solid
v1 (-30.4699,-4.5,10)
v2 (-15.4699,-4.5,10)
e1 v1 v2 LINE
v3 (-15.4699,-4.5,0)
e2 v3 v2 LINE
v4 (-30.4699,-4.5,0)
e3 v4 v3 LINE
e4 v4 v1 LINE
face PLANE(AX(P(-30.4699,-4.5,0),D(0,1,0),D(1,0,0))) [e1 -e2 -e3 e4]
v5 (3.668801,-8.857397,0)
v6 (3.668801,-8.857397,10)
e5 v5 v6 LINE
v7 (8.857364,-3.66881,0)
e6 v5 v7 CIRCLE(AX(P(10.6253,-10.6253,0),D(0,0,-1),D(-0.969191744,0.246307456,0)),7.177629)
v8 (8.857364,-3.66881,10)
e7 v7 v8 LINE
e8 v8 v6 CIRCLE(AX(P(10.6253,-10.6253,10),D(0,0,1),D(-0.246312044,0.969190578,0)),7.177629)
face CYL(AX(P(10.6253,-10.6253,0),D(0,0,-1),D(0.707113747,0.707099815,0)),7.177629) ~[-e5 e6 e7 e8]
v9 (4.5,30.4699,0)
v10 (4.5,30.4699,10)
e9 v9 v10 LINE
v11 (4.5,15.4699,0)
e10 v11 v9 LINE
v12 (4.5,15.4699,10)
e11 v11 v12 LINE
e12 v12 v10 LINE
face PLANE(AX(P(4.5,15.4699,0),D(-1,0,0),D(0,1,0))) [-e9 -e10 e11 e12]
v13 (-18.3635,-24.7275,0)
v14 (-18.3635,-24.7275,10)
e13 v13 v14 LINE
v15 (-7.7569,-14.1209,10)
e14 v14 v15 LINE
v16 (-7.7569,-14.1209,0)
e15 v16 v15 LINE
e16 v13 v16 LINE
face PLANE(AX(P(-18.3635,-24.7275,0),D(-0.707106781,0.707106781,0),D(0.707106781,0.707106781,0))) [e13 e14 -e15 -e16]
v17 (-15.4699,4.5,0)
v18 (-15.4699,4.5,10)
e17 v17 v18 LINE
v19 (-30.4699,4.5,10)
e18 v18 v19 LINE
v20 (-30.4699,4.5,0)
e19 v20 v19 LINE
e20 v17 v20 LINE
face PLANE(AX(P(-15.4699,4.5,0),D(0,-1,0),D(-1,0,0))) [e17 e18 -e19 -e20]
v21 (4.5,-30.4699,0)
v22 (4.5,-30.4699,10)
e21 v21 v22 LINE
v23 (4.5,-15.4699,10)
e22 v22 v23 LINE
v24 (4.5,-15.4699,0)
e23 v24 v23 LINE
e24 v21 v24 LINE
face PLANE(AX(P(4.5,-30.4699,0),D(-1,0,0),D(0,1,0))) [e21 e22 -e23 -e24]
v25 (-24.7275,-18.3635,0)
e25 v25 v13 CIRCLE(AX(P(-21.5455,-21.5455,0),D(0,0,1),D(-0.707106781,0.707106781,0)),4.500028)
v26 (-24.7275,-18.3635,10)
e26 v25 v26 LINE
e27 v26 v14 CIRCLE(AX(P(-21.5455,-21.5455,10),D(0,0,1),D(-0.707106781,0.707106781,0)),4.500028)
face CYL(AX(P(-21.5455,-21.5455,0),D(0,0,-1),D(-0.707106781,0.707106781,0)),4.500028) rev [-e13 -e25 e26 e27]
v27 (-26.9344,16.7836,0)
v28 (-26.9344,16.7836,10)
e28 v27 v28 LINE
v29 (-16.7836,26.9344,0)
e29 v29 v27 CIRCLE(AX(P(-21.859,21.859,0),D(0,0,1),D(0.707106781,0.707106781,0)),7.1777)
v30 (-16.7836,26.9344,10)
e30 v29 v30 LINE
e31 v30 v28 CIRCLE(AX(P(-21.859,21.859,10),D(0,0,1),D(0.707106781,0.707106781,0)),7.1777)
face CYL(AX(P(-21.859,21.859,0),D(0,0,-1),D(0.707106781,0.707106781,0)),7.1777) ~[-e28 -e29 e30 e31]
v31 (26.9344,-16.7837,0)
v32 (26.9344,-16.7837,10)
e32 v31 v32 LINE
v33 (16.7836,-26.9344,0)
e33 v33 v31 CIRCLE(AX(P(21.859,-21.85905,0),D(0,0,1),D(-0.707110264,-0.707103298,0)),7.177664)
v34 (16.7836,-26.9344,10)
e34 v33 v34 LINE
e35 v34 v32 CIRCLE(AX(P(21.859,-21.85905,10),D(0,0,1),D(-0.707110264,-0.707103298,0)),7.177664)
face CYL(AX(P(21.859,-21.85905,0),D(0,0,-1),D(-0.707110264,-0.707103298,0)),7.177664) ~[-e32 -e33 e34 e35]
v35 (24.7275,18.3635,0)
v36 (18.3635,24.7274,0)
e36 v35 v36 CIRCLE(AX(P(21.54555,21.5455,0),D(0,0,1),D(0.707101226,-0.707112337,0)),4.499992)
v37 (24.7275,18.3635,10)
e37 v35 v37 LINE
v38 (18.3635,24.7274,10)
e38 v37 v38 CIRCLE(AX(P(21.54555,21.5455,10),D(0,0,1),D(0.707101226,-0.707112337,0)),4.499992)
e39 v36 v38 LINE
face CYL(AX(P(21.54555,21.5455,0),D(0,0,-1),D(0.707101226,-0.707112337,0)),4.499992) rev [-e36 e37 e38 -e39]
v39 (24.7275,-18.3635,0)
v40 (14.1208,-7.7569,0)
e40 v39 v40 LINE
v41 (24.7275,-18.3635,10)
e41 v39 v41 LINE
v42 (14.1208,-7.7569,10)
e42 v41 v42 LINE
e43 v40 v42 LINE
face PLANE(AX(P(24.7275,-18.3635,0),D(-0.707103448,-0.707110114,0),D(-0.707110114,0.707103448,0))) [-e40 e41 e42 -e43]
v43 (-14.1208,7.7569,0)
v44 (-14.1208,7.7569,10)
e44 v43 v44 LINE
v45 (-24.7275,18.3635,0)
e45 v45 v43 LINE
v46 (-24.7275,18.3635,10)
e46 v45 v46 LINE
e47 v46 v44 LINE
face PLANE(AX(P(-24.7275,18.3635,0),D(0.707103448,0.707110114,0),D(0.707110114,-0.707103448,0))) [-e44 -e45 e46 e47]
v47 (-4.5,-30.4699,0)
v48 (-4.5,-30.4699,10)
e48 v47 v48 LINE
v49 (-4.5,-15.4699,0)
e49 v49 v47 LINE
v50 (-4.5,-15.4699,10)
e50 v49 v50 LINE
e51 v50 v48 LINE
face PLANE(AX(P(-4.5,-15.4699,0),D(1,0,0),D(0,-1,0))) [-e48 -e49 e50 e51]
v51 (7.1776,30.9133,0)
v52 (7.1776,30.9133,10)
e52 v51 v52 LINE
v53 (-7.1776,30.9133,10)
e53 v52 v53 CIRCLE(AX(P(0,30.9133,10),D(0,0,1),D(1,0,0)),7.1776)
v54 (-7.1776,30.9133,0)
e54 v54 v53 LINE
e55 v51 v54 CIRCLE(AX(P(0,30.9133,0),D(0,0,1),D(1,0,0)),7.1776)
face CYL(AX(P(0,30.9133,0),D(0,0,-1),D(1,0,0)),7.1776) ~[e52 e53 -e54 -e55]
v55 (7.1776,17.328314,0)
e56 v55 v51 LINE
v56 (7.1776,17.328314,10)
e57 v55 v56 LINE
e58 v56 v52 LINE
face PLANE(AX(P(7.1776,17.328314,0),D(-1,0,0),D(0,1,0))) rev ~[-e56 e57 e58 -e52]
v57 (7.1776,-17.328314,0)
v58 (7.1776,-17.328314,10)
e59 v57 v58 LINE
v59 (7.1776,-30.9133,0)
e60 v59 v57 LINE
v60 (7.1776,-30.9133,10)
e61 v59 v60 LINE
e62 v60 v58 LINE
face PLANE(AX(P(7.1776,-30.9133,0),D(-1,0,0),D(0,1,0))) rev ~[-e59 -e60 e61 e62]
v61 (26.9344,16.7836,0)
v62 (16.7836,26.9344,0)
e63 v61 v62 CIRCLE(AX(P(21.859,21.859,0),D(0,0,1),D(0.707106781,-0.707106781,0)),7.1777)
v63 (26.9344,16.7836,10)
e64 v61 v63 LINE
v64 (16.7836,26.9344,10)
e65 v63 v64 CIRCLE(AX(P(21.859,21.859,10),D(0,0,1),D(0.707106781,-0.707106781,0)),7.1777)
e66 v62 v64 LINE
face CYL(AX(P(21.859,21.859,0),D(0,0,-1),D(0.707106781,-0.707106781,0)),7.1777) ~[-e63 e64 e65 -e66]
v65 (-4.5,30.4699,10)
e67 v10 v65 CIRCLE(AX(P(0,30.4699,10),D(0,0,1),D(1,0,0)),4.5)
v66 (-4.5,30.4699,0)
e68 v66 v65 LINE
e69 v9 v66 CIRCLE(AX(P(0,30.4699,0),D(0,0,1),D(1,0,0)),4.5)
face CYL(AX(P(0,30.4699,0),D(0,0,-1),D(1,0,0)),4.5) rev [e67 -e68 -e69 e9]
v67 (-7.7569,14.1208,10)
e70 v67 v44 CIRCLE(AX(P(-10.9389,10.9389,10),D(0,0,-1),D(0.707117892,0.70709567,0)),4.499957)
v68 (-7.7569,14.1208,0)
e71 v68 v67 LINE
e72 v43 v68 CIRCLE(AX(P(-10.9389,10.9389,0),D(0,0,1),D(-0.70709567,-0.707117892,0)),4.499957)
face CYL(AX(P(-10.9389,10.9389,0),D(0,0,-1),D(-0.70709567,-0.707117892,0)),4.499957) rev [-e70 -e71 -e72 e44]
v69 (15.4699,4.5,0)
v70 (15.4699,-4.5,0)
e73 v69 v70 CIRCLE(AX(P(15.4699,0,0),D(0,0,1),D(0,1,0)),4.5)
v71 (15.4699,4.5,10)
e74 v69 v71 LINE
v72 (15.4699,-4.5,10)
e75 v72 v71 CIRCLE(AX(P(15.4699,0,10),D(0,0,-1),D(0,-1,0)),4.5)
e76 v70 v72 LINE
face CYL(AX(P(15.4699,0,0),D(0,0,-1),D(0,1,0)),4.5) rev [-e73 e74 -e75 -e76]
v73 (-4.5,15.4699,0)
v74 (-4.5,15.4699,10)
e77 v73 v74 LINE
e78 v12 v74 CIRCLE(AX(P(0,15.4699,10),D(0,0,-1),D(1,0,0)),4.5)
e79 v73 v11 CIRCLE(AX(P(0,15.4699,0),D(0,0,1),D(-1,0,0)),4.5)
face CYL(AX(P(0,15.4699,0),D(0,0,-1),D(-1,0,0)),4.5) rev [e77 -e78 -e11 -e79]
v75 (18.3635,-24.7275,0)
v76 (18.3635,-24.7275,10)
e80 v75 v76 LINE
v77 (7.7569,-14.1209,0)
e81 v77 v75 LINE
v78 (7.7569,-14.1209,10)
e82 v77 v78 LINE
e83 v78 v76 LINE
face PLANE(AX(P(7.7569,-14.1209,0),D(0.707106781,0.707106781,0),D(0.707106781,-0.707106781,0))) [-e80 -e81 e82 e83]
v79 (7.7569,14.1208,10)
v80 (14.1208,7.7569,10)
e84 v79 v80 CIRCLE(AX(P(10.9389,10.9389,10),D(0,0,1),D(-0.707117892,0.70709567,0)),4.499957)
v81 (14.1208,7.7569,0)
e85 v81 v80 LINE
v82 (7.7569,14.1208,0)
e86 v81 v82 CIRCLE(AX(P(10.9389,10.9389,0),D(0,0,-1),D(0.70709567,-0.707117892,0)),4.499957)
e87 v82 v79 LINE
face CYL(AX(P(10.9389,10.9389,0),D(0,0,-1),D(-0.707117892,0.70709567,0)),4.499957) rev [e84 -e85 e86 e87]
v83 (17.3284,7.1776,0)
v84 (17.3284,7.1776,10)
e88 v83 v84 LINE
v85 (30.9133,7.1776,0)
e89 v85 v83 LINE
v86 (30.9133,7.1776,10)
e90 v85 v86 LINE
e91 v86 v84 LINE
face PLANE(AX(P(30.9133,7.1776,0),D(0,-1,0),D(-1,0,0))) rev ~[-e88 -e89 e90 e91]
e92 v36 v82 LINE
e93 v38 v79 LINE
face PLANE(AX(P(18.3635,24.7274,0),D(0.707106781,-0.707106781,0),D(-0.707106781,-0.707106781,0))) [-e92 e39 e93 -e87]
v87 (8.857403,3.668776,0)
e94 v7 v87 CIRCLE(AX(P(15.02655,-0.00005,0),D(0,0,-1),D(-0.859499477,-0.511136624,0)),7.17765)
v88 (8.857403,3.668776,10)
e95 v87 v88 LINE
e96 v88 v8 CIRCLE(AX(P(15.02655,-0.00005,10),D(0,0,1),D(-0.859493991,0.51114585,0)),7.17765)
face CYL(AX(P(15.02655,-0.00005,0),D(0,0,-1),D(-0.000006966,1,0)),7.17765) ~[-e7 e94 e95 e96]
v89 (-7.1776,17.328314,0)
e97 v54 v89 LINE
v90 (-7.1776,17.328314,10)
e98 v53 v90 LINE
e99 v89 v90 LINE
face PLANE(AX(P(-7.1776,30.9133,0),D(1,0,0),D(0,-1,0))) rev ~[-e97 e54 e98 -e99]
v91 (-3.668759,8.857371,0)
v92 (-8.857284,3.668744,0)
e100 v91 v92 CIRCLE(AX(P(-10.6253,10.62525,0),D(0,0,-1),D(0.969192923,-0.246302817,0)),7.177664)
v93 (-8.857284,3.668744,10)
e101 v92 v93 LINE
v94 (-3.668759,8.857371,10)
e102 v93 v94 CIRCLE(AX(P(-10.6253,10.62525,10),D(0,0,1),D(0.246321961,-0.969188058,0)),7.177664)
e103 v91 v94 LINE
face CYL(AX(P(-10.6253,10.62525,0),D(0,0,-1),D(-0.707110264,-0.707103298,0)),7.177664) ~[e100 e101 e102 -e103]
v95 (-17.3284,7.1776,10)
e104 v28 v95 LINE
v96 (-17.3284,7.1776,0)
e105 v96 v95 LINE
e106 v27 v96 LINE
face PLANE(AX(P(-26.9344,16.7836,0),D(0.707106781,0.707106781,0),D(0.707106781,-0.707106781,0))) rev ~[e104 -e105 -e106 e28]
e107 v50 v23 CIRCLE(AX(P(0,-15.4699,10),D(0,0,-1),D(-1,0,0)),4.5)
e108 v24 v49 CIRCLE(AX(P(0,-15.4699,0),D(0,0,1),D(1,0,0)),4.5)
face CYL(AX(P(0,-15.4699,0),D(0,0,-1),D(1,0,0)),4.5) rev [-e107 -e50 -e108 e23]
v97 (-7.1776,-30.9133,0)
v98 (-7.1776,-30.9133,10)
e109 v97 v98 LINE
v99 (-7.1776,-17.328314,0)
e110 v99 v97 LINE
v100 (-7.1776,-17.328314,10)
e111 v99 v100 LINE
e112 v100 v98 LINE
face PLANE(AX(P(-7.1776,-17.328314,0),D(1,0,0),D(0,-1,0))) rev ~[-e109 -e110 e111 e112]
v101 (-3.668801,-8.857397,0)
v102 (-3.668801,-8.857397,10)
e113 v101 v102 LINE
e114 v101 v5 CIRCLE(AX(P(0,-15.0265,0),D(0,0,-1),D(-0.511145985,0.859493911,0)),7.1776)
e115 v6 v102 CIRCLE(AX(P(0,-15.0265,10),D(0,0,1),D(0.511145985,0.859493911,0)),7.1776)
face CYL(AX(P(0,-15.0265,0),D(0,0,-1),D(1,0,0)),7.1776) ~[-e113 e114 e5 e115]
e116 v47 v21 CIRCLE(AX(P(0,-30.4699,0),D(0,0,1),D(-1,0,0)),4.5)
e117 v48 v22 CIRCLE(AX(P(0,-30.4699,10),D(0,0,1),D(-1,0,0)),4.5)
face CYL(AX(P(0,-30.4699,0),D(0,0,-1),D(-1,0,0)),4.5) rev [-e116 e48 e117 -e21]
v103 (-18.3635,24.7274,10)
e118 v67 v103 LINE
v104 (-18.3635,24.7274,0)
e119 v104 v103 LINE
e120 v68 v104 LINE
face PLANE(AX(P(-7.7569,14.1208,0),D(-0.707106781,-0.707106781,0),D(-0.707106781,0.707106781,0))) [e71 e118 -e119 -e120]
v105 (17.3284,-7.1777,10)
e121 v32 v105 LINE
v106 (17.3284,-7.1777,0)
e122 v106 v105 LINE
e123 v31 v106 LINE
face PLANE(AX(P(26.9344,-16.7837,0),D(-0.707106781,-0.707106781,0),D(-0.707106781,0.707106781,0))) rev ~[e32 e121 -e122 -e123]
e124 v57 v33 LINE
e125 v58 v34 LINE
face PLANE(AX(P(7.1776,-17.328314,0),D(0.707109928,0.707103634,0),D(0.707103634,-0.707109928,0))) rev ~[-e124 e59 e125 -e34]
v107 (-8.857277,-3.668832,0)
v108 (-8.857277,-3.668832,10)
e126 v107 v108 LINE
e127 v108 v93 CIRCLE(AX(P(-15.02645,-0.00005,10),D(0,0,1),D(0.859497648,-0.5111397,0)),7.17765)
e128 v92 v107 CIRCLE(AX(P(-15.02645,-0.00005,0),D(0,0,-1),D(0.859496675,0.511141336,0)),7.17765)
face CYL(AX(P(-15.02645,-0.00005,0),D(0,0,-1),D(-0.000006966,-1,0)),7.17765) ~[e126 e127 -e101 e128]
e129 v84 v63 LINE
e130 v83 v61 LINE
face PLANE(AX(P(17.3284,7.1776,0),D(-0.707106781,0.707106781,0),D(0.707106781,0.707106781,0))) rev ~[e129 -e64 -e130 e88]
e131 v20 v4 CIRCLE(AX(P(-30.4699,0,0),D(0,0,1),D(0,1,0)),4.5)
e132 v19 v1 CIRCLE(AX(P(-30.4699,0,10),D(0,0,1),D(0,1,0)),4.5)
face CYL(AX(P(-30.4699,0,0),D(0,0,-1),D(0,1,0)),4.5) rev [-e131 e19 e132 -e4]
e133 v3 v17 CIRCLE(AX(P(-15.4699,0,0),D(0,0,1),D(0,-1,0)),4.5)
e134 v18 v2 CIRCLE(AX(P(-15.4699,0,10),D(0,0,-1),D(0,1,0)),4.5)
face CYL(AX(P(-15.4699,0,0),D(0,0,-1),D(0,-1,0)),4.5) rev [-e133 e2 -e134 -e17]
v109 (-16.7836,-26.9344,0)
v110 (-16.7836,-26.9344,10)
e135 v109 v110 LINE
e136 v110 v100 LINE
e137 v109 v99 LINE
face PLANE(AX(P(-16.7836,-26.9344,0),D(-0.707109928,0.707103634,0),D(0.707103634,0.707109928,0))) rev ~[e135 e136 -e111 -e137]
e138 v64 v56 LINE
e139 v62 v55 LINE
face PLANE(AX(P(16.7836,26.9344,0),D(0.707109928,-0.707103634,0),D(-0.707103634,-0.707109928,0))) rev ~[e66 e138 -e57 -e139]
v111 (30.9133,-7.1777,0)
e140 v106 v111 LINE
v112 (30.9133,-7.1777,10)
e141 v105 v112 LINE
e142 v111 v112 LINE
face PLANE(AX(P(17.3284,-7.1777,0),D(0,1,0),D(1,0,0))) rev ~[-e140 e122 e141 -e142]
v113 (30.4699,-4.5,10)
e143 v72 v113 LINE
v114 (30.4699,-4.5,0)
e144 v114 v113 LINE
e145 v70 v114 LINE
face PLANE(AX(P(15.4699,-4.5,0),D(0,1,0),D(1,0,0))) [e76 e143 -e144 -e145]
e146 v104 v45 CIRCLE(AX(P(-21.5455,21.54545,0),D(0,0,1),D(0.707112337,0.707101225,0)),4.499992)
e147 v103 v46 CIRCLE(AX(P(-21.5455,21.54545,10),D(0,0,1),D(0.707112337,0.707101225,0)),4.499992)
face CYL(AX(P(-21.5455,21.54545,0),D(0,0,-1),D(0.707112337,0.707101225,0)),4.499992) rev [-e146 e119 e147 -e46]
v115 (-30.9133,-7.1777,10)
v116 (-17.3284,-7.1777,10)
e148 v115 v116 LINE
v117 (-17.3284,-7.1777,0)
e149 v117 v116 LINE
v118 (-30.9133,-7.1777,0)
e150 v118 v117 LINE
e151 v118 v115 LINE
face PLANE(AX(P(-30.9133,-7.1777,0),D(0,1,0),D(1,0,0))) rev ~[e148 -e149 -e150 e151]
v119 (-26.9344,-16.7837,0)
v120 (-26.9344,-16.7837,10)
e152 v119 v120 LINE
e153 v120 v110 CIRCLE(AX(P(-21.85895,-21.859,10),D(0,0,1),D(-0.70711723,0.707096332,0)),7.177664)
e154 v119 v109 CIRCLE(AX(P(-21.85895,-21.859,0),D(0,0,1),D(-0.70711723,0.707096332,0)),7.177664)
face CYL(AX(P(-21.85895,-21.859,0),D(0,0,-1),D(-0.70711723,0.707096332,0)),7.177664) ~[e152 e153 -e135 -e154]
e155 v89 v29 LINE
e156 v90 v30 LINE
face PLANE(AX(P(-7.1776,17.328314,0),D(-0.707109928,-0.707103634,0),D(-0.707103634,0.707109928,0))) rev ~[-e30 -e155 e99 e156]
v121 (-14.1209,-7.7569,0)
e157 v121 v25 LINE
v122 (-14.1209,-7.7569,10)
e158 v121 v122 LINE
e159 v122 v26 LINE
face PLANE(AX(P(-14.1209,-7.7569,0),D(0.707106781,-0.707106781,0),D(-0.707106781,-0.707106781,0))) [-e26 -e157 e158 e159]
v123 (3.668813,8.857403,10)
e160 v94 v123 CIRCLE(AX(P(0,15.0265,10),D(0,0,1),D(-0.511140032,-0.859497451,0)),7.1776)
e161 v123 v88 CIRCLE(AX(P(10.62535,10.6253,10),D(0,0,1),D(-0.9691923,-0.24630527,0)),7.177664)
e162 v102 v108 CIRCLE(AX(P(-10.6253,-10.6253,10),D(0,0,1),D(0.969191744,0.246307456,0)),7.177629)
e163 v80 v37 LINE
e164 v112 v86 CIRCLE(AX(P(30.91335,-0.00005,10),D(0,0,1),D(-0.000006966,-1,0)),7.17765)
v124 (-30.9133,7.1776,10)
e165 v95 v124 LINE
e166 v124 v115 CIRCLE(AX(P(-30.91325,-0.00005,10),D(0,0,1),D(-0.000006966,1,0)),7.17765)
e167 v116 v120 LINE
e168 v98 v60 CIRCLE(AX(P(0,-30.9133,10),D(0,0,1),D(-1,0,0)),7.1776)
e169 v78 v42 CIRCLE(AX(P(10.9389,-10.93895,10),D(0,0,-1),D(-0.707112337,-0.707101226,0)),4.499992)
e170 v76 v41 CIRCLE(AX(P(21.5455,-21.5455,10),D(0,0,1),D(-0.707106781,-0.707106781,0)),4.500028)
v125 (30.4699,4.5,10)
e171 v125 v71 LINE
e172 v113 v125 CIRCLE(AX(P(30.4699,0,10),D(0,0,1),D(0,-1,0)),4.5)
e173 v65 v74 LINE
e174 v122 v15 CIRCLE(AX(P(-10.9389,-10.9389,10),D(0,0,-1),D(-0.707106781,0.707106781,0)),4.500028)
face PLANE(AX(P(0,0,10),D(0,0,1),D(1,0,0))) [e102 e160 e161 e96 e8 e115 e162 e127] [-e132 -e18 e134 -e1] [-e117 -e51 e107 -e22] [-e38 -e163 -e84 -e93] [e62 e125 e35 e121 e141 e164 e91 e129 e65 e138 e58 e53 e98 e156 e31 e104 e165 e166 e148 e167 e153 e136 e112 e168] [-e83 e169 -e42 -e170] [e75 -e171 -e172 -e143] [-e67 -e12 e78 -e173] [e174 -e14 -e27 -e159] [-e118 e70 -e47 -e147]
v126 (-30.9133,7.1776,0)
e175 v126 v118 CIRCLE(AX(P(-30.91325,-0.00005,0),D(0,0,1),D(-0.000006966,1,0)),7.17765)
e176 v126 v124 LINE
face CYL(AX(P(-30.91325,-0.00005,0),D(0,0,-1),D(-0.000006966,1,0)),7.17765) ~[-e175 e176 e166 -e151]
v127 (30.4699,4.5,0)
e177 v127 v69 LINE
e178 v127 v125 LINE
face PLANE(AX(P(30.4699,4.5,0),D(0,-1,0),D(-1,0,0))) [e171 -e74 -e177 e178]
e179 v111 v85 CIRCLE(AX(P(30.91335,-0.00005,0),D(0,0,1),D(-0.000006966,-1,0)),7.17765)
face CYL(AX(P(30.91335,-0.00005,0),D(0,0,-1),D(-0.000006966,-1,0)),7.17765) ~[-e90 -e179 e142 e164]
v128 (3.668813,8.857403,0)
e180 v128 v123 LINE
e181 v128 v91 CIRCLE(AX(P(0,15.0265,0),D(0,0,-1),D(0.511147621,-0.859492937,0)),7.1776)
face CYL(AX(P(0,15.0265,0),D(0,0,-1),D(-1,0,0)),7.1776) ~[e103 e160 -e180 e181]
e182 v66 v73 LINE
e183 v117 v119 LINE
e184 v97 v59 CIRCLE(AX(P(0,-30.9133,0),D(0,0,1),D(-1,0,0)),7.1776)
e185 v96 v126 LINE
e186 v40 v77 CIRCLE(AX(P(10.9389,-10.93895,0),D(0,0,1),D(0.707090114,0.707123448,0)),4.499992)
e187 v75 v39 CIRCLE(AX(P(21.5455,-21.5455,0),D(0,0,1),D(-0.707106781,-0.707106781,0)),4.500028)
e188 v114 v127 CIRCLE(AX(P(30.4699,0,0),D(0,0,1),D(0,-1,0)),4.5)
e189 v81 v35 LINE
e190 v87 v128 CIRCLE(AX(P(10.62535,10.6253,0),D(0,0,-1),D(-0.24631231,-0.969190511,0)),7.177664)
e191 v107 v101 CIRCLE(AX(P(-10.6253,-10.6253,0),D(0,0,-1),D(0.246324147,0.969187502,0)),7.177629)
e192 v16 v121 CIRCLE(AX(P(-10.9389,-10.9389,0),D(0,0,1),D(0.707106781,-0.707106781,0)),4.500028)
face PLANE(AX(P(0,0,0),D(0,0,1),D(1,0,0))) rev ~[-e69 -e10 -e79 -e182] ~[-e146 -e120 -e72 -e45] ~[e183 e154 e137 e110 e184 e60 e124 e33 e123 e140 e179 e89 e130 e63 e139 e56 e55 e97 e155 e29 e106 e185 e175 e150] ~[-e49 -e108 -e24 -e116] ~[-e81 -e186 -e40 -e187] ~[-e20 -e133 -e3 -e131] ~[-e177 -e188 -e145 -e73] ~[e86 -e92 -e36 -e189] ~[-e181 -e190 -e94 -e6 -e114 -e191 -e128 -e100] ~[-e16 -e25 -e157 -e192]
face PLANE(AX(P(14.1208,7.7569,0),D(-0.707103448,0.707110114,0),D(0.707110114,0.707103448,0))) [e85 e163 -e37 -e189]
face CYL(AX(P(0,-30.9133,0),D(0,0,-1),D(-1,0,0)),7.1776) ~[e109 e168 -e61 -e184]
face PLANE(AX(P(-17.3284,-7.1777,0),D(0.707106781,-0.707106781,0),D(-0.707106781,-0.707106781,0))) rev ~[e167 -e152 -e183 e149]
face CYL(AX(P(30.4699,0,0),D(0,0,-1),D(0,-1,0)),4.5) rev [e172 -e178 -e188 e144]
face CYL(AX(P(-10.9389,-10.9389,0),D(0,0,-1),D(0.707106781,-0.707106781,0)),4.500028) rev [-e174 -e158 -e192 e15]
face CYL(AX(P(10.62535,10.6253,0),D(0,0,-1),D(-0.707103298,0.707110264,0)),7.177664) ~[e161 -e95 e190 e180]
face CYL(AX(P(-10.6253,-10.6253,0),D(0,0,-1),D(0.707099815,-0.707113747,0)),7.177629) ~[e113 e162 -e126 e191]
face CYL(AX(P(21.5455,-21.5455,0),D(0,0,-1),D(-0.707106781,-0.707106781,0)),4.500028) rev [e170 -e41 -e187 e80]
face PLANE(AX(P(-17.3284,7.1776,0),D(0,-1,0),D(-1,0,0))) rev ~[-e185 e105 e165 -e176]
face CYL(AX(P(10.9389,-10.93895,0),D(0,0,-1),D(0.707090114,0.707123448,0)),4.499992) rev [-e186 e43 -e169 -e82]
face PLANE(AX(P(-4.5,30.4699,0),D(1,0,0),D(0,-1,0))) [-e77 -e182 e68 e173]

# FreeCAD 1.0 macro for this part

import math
import FreeCAD as App
import Part
import Sketcher

V = App.Vector
Q = App.Units.Quantity

doc = App.newDocument("Part")
params = doc.addObject("Spreadsheet::Sheet", "Params")
for row, (alias, value) in enumerate([
    ("sketch1_width", "15 mm"),
    ("sketch1_length", "15 mm"),
    ("sketch1_radius", "4.5 mm"),
    ("pad1_length", "10 mm"),
], start=1):
    params.set(f"A{row}", alias)
    params.set(f"B{row}", "=" + value)
    params.setAlias(f"B{row}", alias)

body = doc.addObject("PartDesign::Body", "Body")

# Sketch on XY plane
sketch1 = body.newObject("Sketcher::SketchObject", "Sketch")
sketch1.AttachmentSupport = (doc.getObject("XY_Plane"), [""])
sketch1.MapMode = "FlatFace"
sketch1.addGeometry(Part.LineSegment(V(16.7836, 26.9344, 0), V(7.1776, 17.328314, 0)), False)
sketch1.addGeometry(Part.LineSegment(V(7.1776, 17.328314, 0), V(7.1776, 30.9133, 0)), False)
sketch1.addGeometry(Part.ArcOfCircle(Part.Circle(V(0, 30.9133, 0), V(0, 0, 1), 7.1776), math.radians(0), math.radians(180)), False)
sketch1.addGeometry(Part.LineSegment(V(-7.1776, 30.9133, 0), V(-7.1776, 17.328314, 0)), False)
sketch1.addGeometry(Part.LineSegment(V(-7.1776, 17.328314, 0), V(-16.7836, 26.9344, 0)), False)
sketch1.addGeometry(Part.ArcOfCircle(Part.Circle(V(-21.859, 21.859, 0), V(0, 0, 1), 7.1777), math.radians(45), math.radians(225)), False)
sketch1.addGeometry(Part.LineSegment(V(-26.9344, 16.7836, 0), V(-17.3284, 7.1776, 0)), False)
sketch1.addGeometry(Part.LineSegment(V(-17.3284, 7.1776, 0), V(-30.9133, 7.1776, 0)), False)
sketch1.addGeometry(Part.ArcOfCircle(Part.Circle(V(-30.9133, 0, 0), V(0, 0, 1), 7.1776), math.radians(90), math.radians(270)), False)
sketch1.addGeometry(Part.LineSegment(V(-30.9133, -7.1777, 0), V(-17.3284, -7.1777, 0)), False)
sketch1.addGeometry(Part.LineSegment(V(-17.3284, -7.1777, 0), V(-26.9344, -16.7837, 0)), False)
sketch1.addGeometry(Part.ArcOfCircle(Part.Circle(V(-21.859, -21.859, 0), V(0, 0, 1), 7.177629), math.radians(135.000564), math.radians(315)), False)
sketch1.addGeometry(Part.LineSegment(V(-16.7836, -26.9344, 0), V(-7.1776, -17.328314, 0)), False)
sketch1.addGeometry(Part.LineSegment(V(-7.1776, -17.328314, 0), V(-7.1776, -30.9133, 0)), False)
sketch1.addGeometry(Part.ArcOfCircle(Part.Circle(V(0, -30.9133, 0), V(0, 0, 1), 7.1776), math.radians(180), math.radians(360)), False)
sketch1.addGeometry(Part.LineSegment(V(7.1776, -30.9133, 0), V(7.1776, -17.328314, 0)), False)
sketch1.addGeometry(Part.LineSegment(V(7.1776, -17.328314, 0), V(16.7836, -26.9344, 0)), False)
sketch1.addGeometry(Part.ArcOfCircle(Part.Circle(V(21.859, -21.859, 0), V(0, 0, 1), 7.1777), math.radians(-135), math.radians(44.999436)), False)
sketch1.addGeometry(Part.LineSegment(V(26.9344, -16.7837, 0), V(17.3284, -7.1777, 0)), False)
sketch1.addGeometry(Part.LineSegment(V(17.3284, -7.1777, 0), V(30.9133, -7.1777, 0)), False)
sketch1.addGeometry(Part.ArcOfCircle(Part.Circle(V(30.9133, 0, 0), V(0, 0, 1), 7.1777), math.radians(-90), math.radians(90)), False)
sketch1.addGeometry(Part.LineSegment(V(30.9133, 7.1776, 0), V(17.3284, 7.1776, 0)), False)
sketch1.addGeometry(Part.LineSegment(V(17.3284, 7.1776, 0), V(26.9344, 16.7836, 0)), False)
sketch1.addGeometry(Part.ArcOfCircle(Part.Circle(V(21.859, 21.859, 0), V(0, 0, 1), 7.1777), math.radians(-45), math.radians(135)), False)
sketch1.addGeometry(Part.LineSegment(V(7.7569, 14.1208, 0), V(18.3635, 24.7274, 0)), False)
sketch1.addGeometry(Part.ArcOfCircle(Part.Circle(V(21.5455, 21.5455, 0), V(0, 0, 1), 4.500028), math.radians(-45), math.radians(135.0009)), False)
sketch1.addGeometry(Part.LineSegment(V(24.7275, 18.3635, 0), V(14.1208, 7.7569, 0)), False)
sketch1.addGeometry(Part.ArcOfCircle(Part.Circle(V(10.9389, 10.9389, 0), V(0, 0, 1), 4.499957), math.radians(135.0009), math.radians(314.9991)), False)
sketch1.addGeometry(Part.ArcOfCircle(Part.Circle(V(10.6253, 10.6253, 0), V(0, 0, 1), 7.177629), math.radians(-165.740917), math.radians(-104.259014)), False)
sketch1.addGeometry(Part.ArcOfCircle(Part.Circle(V(15.0265, 0, 0), V(0, 0, 1), 7.1776), math.radians(149.259955), math.radians(210.740116)), False)
sketch1.addGeometry(Part.ArcOfCircle(Part.Circle(V(10.6253, -10.6253, 0), V(0, 0, 1), 7.177629), math.radians(104.259385), math.radians(165.740887)), False)
sketch1.addGeometry(Part.ArcOfCircle(Part.Circle(V(0, -15.0265, 0), V(0, 0, 1), 7.1776), math.radians(59.259807), math.radians(120.740193)), False)
sketch1.addGeometry(Part.ArcOfCircle(Part.Circle(V(-10.6253, -10.6253, 0), V(0, 0, 1), 7.177629), math.radians(14.259113), math.radians(75.7399)), False)
sketch1.addGeometry(Part.ArcOfCircle(Part.Circle(V(-15.0265, 0, 0), V(0, 0, 1), 7.1777), math.radians(-30.739913), math.radians(30.739336)), False)
sketch1.addGeometry(Part.ArcOfCircle(Part.Circle(V(-10.6253, 10.6253, 0), V(0, 0, 1), 7.1777), math.radians(-75.740127), math.radians(-14.259226)), False)
sketch1.addGeometry(Part.ArcOfCircle(Part.Circle(V(0, 15.0265, 0), V(0, 0, 1), 7.1776), math.radians(-120.739797), math.radians(-59.259698)), False)
sketch1.addGeometry(Part.LineSegment(V(-4.5, 15.4699, 0), V(-4.5, 30.4699, 0)), False)
sketch1.addGeometry(Part.ArcOfCircle(Part.Circle(V(0, 30.4699, 0), V(0, 0, 1), 4.5), math.radians(0), math.radians(180)), False)
sketch1.addGeometry(Part.LineSegment(V(4.5, 30.4699, 0), V(4.5, 15.4699, 0)), False)
sketch1.addGeometry(Part.ArcOfCircle(Part.Circle(V(0, 15.4699, 0), V(0, 0, 1), 4.5), math.radians(180), math.radians(360)), False)
sketch1.addGeometry(Part.LineSegment(V(15.4699, 4.5, 0), V(30.4699, 4.5, 0)), False)
sketch1.addGeometry(Part.ArcOfCircle(Part.Circle(V(30.4699, 0, 0), V(0, 0, 1), 4.5), math.radians(-90), math.radians(90)), False)
sketch1.addGeometry(Part.LineSegment(V(30.4699, -4.5, 0), V(15.4699, -4.5, 0)), False)
sketch1.addGeometry(Part.ArcOfCircle(Part.Circle(V(15.4699, 0, 0), V(0, 0, 1), 4.5), math.radians(90), math.radians(270)), False)
sketch1.addGeometry(Part.ArcOfCircle(Part.Circle(V(-10.9389, 10.9389, 0), V(0, 0, 1), 4.499957), math.radians(-134.9991), math.radians(44.9991)), False)
sketch1.addGeometry(Part.LineSegment(V(-14.1208, 7.7569, 0), V(-24.7275, 18.3635, 0)), False)
sketch1.addGeometry(Part.ArcOfCircle(Part.Circle(V(-21.5455, 21.5455, 0), V(0, 0, 1), 4.499957), math.radians(44.9991), math.radians(225)), False)
sketch1.addGeometry(Part.LineSegment(V(-18.3635, 24.7274, 0), V(-7.7569, 14.1208, 0)), False)
sketch1.addGeometry(Part.ArcOfCircle(Part.Circle(V(10.9389, -10.9389, 0), V(0, 0, 1), 4.499957), math.radians(45.0009), math.radians(225)), False)
sketch1.addGeometry(Part.LineSegment(V(14.1208, -7.7569, 0), V(24.7275, -18.3635, 0)), False)
sketch1.addGeometry(Part.ArcOfCircle(Part.Circle(V(21.5455, -21.5455, 0), V(0, 0, 1), 4.500028), math.radians(-135), math.radians(45)), False)
sketch1.addGeometry(Part.LineSegment(V(18.3635, -24.7275, 0), V(7.7569, -14.1209, 0)), False)
sketch1.addGeometry(Part.LineSegment(V(-15.4699, -4.5, 0), V(-30.4699, -4.5, 0)), False)
sketch1.addGeometry(Part.ArcOfCircle(Part.Circle(V(-30.4699, 0, 0), V(0, 0, 1), 4.5), math.radians(90), math.radians(270)), False)
sketch1.addGeometry(Part.LineSegment(V(-30.4699, 4.5, 0), V(-15.4699, 4.5, 0)), False)
sketch1.addGeometry(Part.ArcOfCircle(Part.Circle(V(-15.4699, 0, 0), V(0, 0, 1), 4.5), math.radians(-90), math.radians(90)), False)
sketch1.addGeometry(Part.LineSegment(V(4.5, -15.4699, 0), V(4.5, -30.4699, 0)), False)
sketch1.addGeometry(Part.ArcOfCircle(Part.Circle(V(0, -30.4699, 0), V(0, 0, 1), 4.5), math.radians(180), math.radians(360)), False)
sketch1.addGeometry(Part.LineSegment(V(-4.5, -30.4699, 0), V(-4.5, -15.4699, 0)), False)
sketch1.addGeometry(Part.ArcOfCircle(Part.Circle(V(0, -15.4699, 0), V(0, 0, 1), 4.5), math.radians(0), math.radians(180)), False)
sketch1.addGeometry(Part.LineSegment(V(-7.7569, -14.1209, 0), V(-18.3635, -24.7275, 0)), False)
sketch1.addGeometry(Part.ArcOfCircle(Part.Circle(V(-21.5455, -21.5455, 0), V(0, 0, 1), 4.500028), math.radians(135), math.radians(315)), False)
sketch1.addGeometry(Part.LineSegment(V(-24.7275, -18.3635, 0), V(-14.1209, -7.7569, 0)), False)
sketch1.addGeometry(Part.ArcOfCircle(Part.Circle(V(-10.9389, -10.9389, 0), V(0, 0, 1), 4.500028), math.radians(-45), math.radians(135)), False)
sketch1.addConstraint(Sketcher.Constraint("Coincident", 0, 2, 1, 1))
sketch1.addConstraint(Sketcher.Constraint("Tangent", 1, 2, 2, 1))
sketch1.addConstraint(Sketcher.Constraint("Tangent", 2, 2, 3, 1))
sketch1.addConstraint(Sketcher.Constraint("Coincident", 3, 2, 4, 1))
sketch1.addConstraint(Sketcher.Constraint("Tangent", 4, 2, 5, 1))
sketch1.addConstraint(Sketcher.Constraint("Tangent", 5, 2, 6, 1))
sketch1.addConstraint(Sketcher.Constraint("Coincident", 6, 2, 7, 1))
sketch1.addConstraint(Sketcher.Constraint("Tangent", 7, 2, 8, 1))
sketch1.addConstraint(Sketcher.Constraint("Tangent", 8, 2, 9, 1))
sketch1.addConstraint(Sketcher.Constraint("Coincident", 9, 2, 10, 1))
sketch1.addConstraint(Sketcher.Constraint("Tangent", 10, 2, 11, 1))
sketch1.addConstraint(Sketcher.Constraint("Tangent", 11, 2, 12, 1))
sketch1.addConstraint(Sketcher.Constraint("Coincident", 12, 2, 13, 1))
sketch1.addConstraint(Sketcher.Constraint("Tangent", 13, 2, 14, 1))
sketch1.addConstraint(Sketcher.Constraint("Tangent", 14, 2, 15, 1))
sketch1.addConstraint(Sketcher.Constraint("Coincident", 15, 2, 16, 1))
sketch1.addConstraint(Sketcher.Constraint("Tangent", 16, 2, 17, 1))
sketch1.addConstraint(Sketcher.Constraint("Tangent", 17, 2, 18, 1))
sketch1.addConstraint(Sketcher.Constraint("Coincident", 18, 2, 19, 1))
sketch1.addConstraint(Sketcher.Constraint("Tangent", 19, 2, 20, 1))
sketch1.addConstraint(Sketcher.Constraint("Tangent", 20, 2, 21, 1))
sketch1.addConstraint(Sketcher.Constraint("Coincident", 21, 2, 22, 1))
sketch1.addConstraint(Sketcher.Constraint("Tangent", 22, 2, 23, 1))
sketch1.addConstraint(Sketcher.Constraint("Tangent", 23, 2, 0, 1))
sketch1.addConstraint(Sketcher.Constraint("Tangent", 24, 2, 25, 2))
sketch1.addConstraint(Sketcher.Constraint("Tangent", 25, 1, 26, 1))
sketch1.addConstraint(Sketcher.Constraint("Tangent", 26, 2, 27, 2))
sketch1.addConstraint(Sketcher.Constraint("Tangent", 27, 1, 24, 1))
sketch1.addConstraint(Sketcher.Constraint("Coincident", 28, 2, 29, 1))
sketch1.addConstraint(Sketcher.Constraint("Coincident", 29, 2, 30, 1))
sketch1.addConstraint(Sketcher.Constraint("Coincident", 30, 2, 31, 1))
sketch1.addConstraint(Sketcher.Constraint("Coincident", 31, 2, 32, 1))
sketch1.addConstraint(Sketcher.Constraint("Coincident", 32, 2, 33, 1))
sketch1.addConstraint(Sketcher.Constraint("Coincident", 33, 2, 34, 1))
sketch1.addConstraint(Sketcher.Constraint("Coincident", 34, 2, 35, 1))
sketch1.addConstraint(Sketcher.Constraint("Coincident", 35, 2, 28, 1))
sketch1.addConstraint(Sketcher.Constraint("Tangent", 36, 2, 37, 2))
sketch1.addConstraint(Sketcher.Constraint("Tangent", 37, 1, 38, 1))
sketch1.addConstraint(Sketcher.Constraint("Tangent", 38, 2, 39, 2))
sketch1.addConstraint(Sketcher.Constraint("Tangent", 39, 1, 36, 1))
sketch1.addConstraint(Sketcher.Constraint("Tangent", 40, 2, 41, 2))
sketch1.addConstraint(Sketcher.Constraint("Tangent", 41, 1, 42, 1))
sketch1.addConstraint(Sketcher.Constraint("Tangent", 42, 2, 43, 2))
sketch1.addConstraint(Sketcher.Constraint("Tangent", 43, 1, 40, 1))
sketch1.addConstraint(Sketcher.Constraint("Tangent", 44, 1, 45, 1))
sketch1.addConstraint(Sketcher.Constraint("Tangent", 45, 2, 46, 2))
sketch1.addConstraint(Sketcher.Constraint("Tangent", 46, 1, 47, 1))
sketch1.addConstraint(Sketcher.Constraint("Tangent", 47, 2, 44, 2))
sketch1.addConstraint(Sketcher.Constraint("Tangent", 48, 1, 49, 1))
sketch1.addConstraint(Sketcher.Constraint("Tangent", 49, 2, 50, 2))
sketch1.addConstraint(Sketcher.Constraint("Tangent", 50, 1, 51, 1))
sketch1.addConstraint(Sketcher.Constraint("Tangent", 51, 2, 48, 2))
sketch1.addConstraint(Sketcher.Constraint("Tangent", 52, 2, 53, 2))
sketch1.addConstraint(Sketcher.Constraint("Tangent", 53, 1, 54, 1))
sketch1.addConstraint(Sketcher.Constraint("Tangent", 54, 2, 55, 2))
sketch1.addConstraint(Sketcher.Constraint("Tangent", 55, 1, 52, 1))
sketch1.addConstraint(Sketcher.Constraint("Tangent", 56, 2, 57, 2))
sketch1.addConstraint(Sketcher.Constraint("Tangent", 57, 1, 58, 1))
sketch1.addConstraint(Sketcher.Constraint("Tangent", 58, 2, 59, 2))
sketch1.addConstraint(Sketcher.Constraint("Tangent", 59, 1, 56, 1))
sketch1.addConstraint(Sketcher.Constraint("Tangent", 60, 2, 61, 2))
sketch1.addConstraint(Sketcher.Constraint("Tangent", 61, 1, 62, 1))
sketch1.addConstraint(Sketcher.Constraint("Tangent", 62, 2, 63, 2))
sketch1.addConstraint(Sketcher.Constraint("Tangent", 63, 1, 60, 1))
sketch1.addConstraint(Sketcher.Constraint("Vertical", 1))
sketch1.addConstraint(Sketcher.Constraint("Vertical", 3))
sketch1.addConstraint(Sketcher.Constraint("Horizontal", 7))
sketch1.addConstraint(Sketcher.Constraint("Horizontal", 9))
sketch1.addConstraint(Sketcher.Constraint("Vertical", 13))
sketch1.addConstraint(Sketcher.Constraint("Vertical", 15))
sketch1.addConstraint(Sketcher.Constraint("Horizontal", 19))
sketch1.addConstraint(Sketcher.Constraint("Horizontal", 21))
sketch1.addConstraint(Sketcher.Constraint("Vertical", 36))
sketch1.addConstraint(Sketcher.Constraint("Vertical", 38))
sketch1.addConstraint(Sketcher.Constraint("Horizontal", 40))
sketch1.addConstraint(Sketcher.Constraint("Horizontal", 42))
sketch1.addConstraint(Sketcher.Constraint("Horizontal", 52))
sketch1.addConstraint(Sketcher.Constraint("Horizontal", 54))
sketch1.addConstraint(Sketcher.Constraint("Vertical", 56))
sketch1.addConstraint(Sketcher.Constraint("Vertical", 58))
sketch1.addConstraint(Sketcher.Constraint("Equal", 2, 5))
sketch1.addConstraint(Sketcher.Constraint("Equal", 5, 8))
sketch1.addConstraint(Sketcher.Constraint("Equal", 8, 11))
sketch1.addConstraint(Sketcher.Constraint("Equal", 11, 14))
sketch1.addConstraint(Sketcher.Constraint("Equal", 14, 17))
sketch1.addConstraint(Sketcher.Constraint("Equal", 17, 20))
sketch1.addConstraint(Sketcher.Constraint("Equal", 20, 23))
sketch1.addConstraint(Sketcher.Constraint("Equal", 25, 27))
sketch1.addConstraint(Sketcher.Constraint("Equal", 23, 28))
sketch1.addConstraint(Sketcher.Constraint("Equal", 28, 29))
sketch1.addConstraint(Sketcher.Constraint("Equal", 29, 30))
sketch1.addConstraint(Sketcher.Constraint("Equal", 30, 31))
sketch1.addConstraint(Sketcher.Constraint("Equal", 31, 32))
sketch1.addConstraint(Sketcher.Constraint("Equal", 32, 33))
sketch1.addConstraint(Sketcher.Constraint("Equal", 33, 34))
sketch1.addConstraint(Sketcher.Constraint("Equal", 34, 35))
sketch1.addConstraint(Sketcher.Constraint("Equal", 27, 37))
sketch1.addConstraint(Sketcher.Constraint("Equal", 39, 41))
sketch1.addConstraint(Sketcher.Constraint("Equal", 43, 44))
sketch1.addConstraint(Sketcher.Constraint("Equal", 44, 46))
sketch1.addConstraint(Sketcher.Constraint("Equal", 46, 48))
sketch1.addConstraint(Sketcher.Constraint("Equal", 48, 50))
sketch1.addConstraint(Sketcher.Constraint("Equal", 50, 53))
sketch1.addConstraint(Sketcher.Constraint("Equal", 55, 57))
sketch1.addConstraint(Sketcher.Constraint("Equal", 59, 61))
sketch1.addConstraint(Sketcher.Constraint("Equal", 61, 63))
sketch1.addConstraint(Sketcher.Constraint("Symmetric", 2, 3, 14, 3, -1, 1))
sketch1.addConstraint(Sketcher.Constraint("Symmetric", 5, 3, 17, 3, -1, 1))
sketch1.addConstraint(Sketcher.Constraint("Symmetric", 8, 3, 20, 3, -1, 1))
sketch1.addConstraint(Sketcher.Constraint("Symmetric", 11, 3, 23, 3, -1, 1))
sketch1.addConstraint(Sketcher.Constraint("Symmetric", 28, 3, 32, 3, -1, 1))
sketch1.addConstraint(Sketcher.Constraint("Symmetric", 29, 3, 33, 3, -1, 1))
sketch1.addConstraint(Sketcher.Constraint("Symmetric", 30, 3, 34, 3, -1, 1))
sketch1.addConstraint(Sketcher.Constraint("Symmetric", 31, 3, 35, 3, -1, 1))
sketch1.addConstraint(Sketcher.Constraint("Symmetric", 44, 3, 48, 3, -1, 1))
sketch1.addConstraint(Sketcher.Constraint("Symmetric", 46, 3, 50, 3, -1, 1))
sketch1.addConstraint(Sketcher.Constraint("Symmetric", 41, 3, 53, 3, -1, 1))
sketch1.addConstraint(Sketcher.Constraint("Symmetric", 37, 3, 57, 3, -1, 1))
sketch1.addConstraint(Sketcher.Constraint("Symmetric", 25, 3, 61, 3, -1, 1))
sketch1.addConstraint(Sketcher.Constraint("Symmetric", 27, 3, 63, 3, -1, 1))
sketch1.addConstraint(Sketcher.Constraint("Symmetric", 11, 3, 17, 3, -2))
sketch1.addConstraint(Sketcher.Constraint("Symmetric", 30, 3, 32, 3, -2))
sketch1.addConstraint(Sketcher.Constraint("Symmetric", 27, 3, 44, 3, -2))
sketch1.addConstraint(Sketcher.Constraint("Symmetric", 25, 3, 46, 3, -2))
sketch1.addConstraint(Sketcher.Constraint("Symmetric", 43, 3, 55, 3, -2))
sketch1.addConstraint(Sketcher.Constraint("Symmetric", 0, 2, 3, 2, -2))
sketch1.addConstraint(Sketcher.Constraint("Symmetric", 9, 2, 18, 2, -2))
sketch1.addConstraint(Sketcher.Constraint("Symmetric", 39, 3, 59, 3, -1))
sketch1.addConstraint(Sketcher.Constraint("PointOnObject", 29, 3, -1))
sketch1.addConstraint(Sketcher.Constraint("PointOnObject", 31, 3, -2))
sketch1.addConstraint(Sketcher.Constraint("Perpendicular", 0, 4))
sketch1.addConstraint(Sketcher.Constraint("Parallel", 4, 6))
sketch1.addConstraint(Sketcher.Constraint("Perpendicular", 6, 10))
sketch1.addConstraint(Sketcher.Constraint("Parallel", 10, 12))
sketch1.addConstraint(Sketcher.Constraint("Perpendicular", 12, 16))
sketch1.addConstraint(Sketcher.Constraint("Perpendicular", 18, 22))
sketch1.addConstraint(Sketcher.Constraint("Parallel", 22, 24))
sketch1.addConstraint(Sketcher.Constraint("Equal", 21, 1))
sketch1.addConstraint(Sketcher.Constraint("Equal", 54, 36))
sketch1.addConstraint(Sketcher.Constraint("Equal", 4, 6))
sketch1.addConstraint(Sketcher.Constraint("DistanceX", 40, 1, 40, 2, Q("15 mm")))
sketch1.addConstraint(Sketcher.Constraint("Distance", 24, Q("15 mm")))
sketch1.addConstraint(Sketcher.Constraint("Radius", 25, Q("4.5 mm")))
sketch1.addConstraint(Sketcher.Constraint("Radius", 2, Q("7.1776 mm")))
sketch1.addConstraint(Sketcher.Constraint("DistanceX", 7, 2, 7, 1, Q("13.585 mm")))
sketch1.addConstraint(Sketcher.Constraint("DistanceY", -1, 1, 37, 3, Q("30.47 mm")))
sketch1.addConstraint(Sketcher.Constraint("DistanceX", -1, 1, 41, 3, Q("30.47 mm")))
sketch1.addConstraint(Sketcher.Constraint("Distance", 0, Q("13.585 mm")))
sketch1.addConstraint(Sketcher.Constraint("DistanceX", -1, 1, 27, 3, Q("10.939 mm")))
sketch1.addConstraint(Sketcher.Constraint("DistanceY", -1, 1, 27, 3, Q("10.939 mm")))
sketch1.addConstraint(Sketcher.Constraint("DistanceX", -1, 1, 28, 3, Q("10.6253 mm")))
sketch1.addConstraint(Sketcher.Constraint("DistanceY", -1, 1, 28, 3, Q("10.6253 mm")))
sketch1.addConstraint(Sketcher.Constraint("DistanceX", -1, 1, 29, 3, Q("15.0265 mm")))
sketch1.addConstraint(Sketcher.Constraint("DistanceY", 31, 3, -1, 1, Q("15.0265 mm")))
sketch1.setExpression("Constraints[140]", "Params.sketch1_width")
sketch1.setExpression("Constraints[141]", "Params.sketch1_length")
sketch1.setExpression("Constraints[142]", "Params.sketch1_radius")
pad1 = body.newObject("PartDesign::Pad", "Pad")
pad1.Profile = sketch1
pad1.setExpression("Length", "Params.pad1_length")

doc.recompute()
